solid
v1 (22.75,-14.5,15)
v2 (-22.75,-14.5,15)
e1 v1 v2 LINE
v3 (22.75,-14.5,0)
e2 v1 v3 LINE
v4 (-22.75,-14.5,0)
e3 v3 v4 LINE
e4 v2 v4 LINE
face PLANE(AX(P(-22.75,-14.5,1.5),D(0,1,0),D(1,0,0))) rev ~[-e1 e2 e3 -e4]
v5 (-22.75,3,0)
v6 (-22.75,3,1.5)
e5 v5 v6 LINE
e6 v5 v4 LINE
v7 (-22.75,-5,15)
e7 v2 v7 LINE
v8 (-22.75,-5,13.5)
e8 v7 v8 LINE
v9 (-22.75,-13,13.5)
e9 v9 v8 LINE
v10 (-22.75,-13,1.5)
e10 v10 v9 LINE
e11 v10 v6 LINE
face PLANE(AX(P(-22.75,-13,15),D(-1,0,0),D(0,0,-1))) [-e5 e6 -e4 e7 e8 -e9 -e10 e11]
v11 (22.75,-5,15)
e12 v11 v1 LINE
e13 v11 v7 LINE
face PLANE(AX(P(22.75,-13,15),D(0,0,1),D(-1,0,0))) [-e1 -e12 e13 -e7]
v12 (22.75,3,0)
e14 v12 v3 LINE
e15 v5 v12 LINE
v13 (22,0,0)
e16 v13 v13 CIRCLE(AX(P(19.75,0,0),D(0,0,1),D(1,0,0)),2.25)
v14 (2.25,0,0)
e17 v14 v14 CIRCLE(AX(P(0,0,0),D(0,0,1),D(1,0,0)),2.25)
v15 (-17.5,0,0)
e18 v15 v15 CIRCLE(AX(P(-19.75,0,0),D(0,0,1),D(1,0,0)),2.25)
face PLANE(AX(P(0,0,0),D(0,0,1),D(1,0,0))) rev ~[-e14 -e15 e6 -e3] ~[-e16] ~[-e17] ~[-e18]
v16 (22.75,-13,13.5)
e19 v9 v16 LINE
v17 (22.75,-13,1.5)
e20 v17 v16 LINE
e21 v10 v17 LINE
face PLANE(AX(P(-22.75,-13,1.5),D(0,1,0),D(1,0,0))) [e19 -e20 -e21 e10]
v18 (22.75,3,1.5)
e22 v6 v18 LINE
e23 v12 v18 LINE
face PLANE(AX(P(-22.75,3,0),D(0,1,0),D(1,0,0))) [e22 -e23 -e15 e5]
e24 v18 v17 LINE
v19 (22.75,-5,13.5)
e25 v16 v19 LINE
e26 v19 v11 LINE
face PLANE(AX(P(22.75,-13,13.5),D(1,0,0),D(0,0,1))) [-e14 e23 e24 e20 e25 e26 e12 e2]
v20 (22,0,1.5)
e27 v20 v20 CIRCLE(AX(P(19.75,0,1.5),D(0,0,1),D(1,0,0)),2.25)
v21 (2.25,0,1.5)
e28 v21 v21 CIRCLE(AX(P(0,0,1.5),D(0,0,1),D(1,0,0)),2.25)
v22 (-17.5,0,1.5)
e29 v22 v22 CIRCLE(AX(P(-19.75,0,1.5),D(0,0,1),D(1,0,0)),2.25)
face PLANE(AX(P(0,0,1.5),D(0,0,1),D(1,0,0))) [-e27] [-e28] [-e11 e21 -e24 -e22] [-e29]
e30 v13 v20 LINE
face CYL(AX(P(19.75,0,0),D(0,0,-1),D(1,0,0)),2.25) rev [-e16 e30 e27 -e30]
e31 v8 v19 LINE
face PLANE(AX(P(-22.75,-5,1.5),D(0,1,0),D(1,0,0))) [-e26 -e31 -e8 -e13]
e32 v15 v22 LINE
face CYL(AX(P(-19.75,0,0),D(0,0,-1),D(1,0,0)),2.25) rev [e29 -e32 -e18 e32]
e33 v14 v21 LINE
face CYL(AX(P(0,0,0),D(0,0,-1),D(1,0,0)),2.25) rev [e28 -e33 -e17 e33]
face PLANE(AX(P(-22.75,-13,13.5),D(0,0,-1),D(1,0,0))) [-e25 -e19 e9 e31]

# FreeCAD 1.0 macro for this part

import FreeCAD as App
import Part
import Sketcher


def add_polygon(sketch, points):
    """Adds a closed chain of lines whose ends are joined by coincident constraints."""
    first, n = sketch.GeometryCount, len(points)
    for a, b in zip(points, points[1:] + points[:1]):
        sketch.addGeometry(Part.LineSegment(App.Vector(*a, 0), App.Vector(*b, 0)), False)
    for i in range(n):
        sketch.addConstraint(Sketcher.Constraint("Coincident", first + i, 2, first + (i + 1) % n, 1))

doc = App.newDocument("Part")
body = doc.addObject("PartDesign::Body", "Body")

# Sketch on XY plane
sketch1 = body.newObject("Sketcher::SketchObject", "Sketch")
sketch1.AttachmentSupport = (doc.getObject("XY_Plane"), [""])
sketch1.MapMode = "FlatFace"
add_polygon(sketch1, [(22.8, 3), (-22.8, 3), (-22.8, -14.5), (22.8, -14.5)])  # lines 0-3
sketch1.addGeometry(Part.Circle(App.Vector(-19.8, 0, 0), App.Vector(0, 0, 1), 2.2), False)  # 4
sketch1.addGeometry(Part.Circle(App.Vector(0, 0, 0), App.Vector(0, 0, 1), 2.2), False)  # 5
sketch1.addGeometry(Part.Circle(App.Vector(19.8, 0, 0), App.Vector(0, 0, 1), 2.2), False)  # 6
sketch1.addConstraint([
    Sketcher.Constraint("Horizontal", 0),
    Sketcher.Constraint("Vertical", 1),
    Sketcher.Constraint("Horizontal", 2),
    Sketcher.Constraint("Vertical", 3),
    Sketcher.Constraint("Coincident", 5, 3, -1, 1),
    Sketcher.Constraint("Equal", 4, 5),
    Sketcher.Constraint("Equal", 5, 6),
    Sketcher.Constraint("Symmetric", 4, 3, 6, 3, -1, 1),
    Sketcher.Constraint("PointOnObject", 4, 3, -1),
    Sketcher.Constraint("Diameter", 4, 4.5),
    Sketcher.Constraint("DistanceY", -1, 1, 0, 2, 3.0),
    Sketcher.Constraint("DistanceX", 0, 2, 4, 3, 3.0),
    Sketcher.Constraint("DistanceX", 6, 3, 2, 2, 3.0),
    Sketcher.Constraint("DistanceX", 0, 2, 0, 1, 45.5),
    Sketcher.Constraint("DistanceY", 1, 2, 1, 1, 17.5),
])
pad1 = body.newObject("PartDesign::Pad", "Pad")
pad1.Profile = sketch1
pad1.Length = 1.5

# Sketch on XY plane
sketch2 = body.newObject("Sketcher::SketchObject", "Sketch001")
sketch2.AttachmentSupport = (doc.getObject("XY_Plane"), [""])
sketch2.MapMode = "FlatFace"
add_polygon(sketch2, [(22.8, -13), (-22.8, -13), (-22.8, -14.5), (22.8, -14.5)])  # lines 0-3
sketch2.addConstraint([
    Sketcher.Constraint("Horizontal", 0),
    Sketcher.Constraint("Vertical", 1),
    Sketcher.Constraint("Horizontal", 2),
    Sketcher.Constraint("Vertical", 3),
    Sketcher.Constraint("DistanceY", 1, 2, 1, 1, 1.5),
    Sketcher.Constraint("DistanceX", 0, 2, 0, 1, 45.5),
    Sketcher.Constraint("DistanceY", 0, 2, -1, 1, 13.0),
    Sketcher.Constraint("DistanceX", 0, 2, -1, 1, 22.75),
])
pad2 = body.newObject("PartDesign::Pad", "Pad001")
pad2.Profile = sketch2
pad2.Length = 13.5

# Sketch on XZ plane
sketch3 = body.newObject("Sketcher::SketchObject", "Sketch002")
sketch3.AttachmentSupport = (doc.getObject("XZ_Plane"), [""])
sketch3.MapMode = "FlatFace"
sketch3.AttachmentOffset = App.Placement(App.Vector(0, 0, 13), App.Rotation())
add_polygon(sketch3, [(22.8, 13.5), (-22.8, 13.5), (-22.8, 15), (22.8, 15)])  # lines 0-3
sketch3.addConstraint([
    Sketcher.Constraint("Horizontal", 0),
    Sketcher.Constraint("Vertical", 1),
    Sketcher.Constraint("Horizontal", 2),
    Sketcher.Constraint("Vertical", 3),
    Sketcher.Constraint("DistanceY", 1, 1, 1, 2, 1.5),
    Sketcher.Constraint("DistanceX", 0, 2, 0, 1, 45.5),
    Sketcher.Constraint("DistanceY", -1, 1, 1, 2, 15.0),
    Sketcher.Constraint("DistanceX", 0, 2, -1, 1, 22.75),
])
pad3 = body.newObject("PartDesign::Pad", "Pad002")
pad3.Profile = sketch3
pad3.Length = 1.5

# Sketch on XZ plane
sketch4 = body.newObject("Sketcher::SketchObject", "Sketch003")
sketch4.AttachmentSupport = (doc.getObject("XZ_Plane"), [""])
sketch4.MapMode = "FlatFace"
sketch4.AttachmentOffset = App.Placement(App.Vector(0, 0, 13), App.Rotation())
add_polygon(sketch4, [(22.8, 13.5), (-22.8, 13.5), (-22.8, 15), (22.8, 15)])  # lines 0-3
sketch4.addConstraint([
    Sketcher.Constraint("Horizontal", 0),
    Sketcher.Constraint("Vertical", 1),
    Sketcher.Constraint("Horizontal", 2),
    Sketcher.Constraint("Vertical", 3),
    Sketcher.Constraint("DistanceY", 1, 1, 1, 2, 1.5),
    Sketcher.Constraint("DistanceX", 0, 2, 0, 1, 45.5),
    Sketcher.Constraint("DistanceY", -1, 1, 1, 2, 15.0),
    Sketcher.Constraint("DistanceX", 0, 2, -1, 1, 22.75),
])
pad4 = body.newObject("PartDesign::Pad", "Pad003")
pad4.Profile = sketch4
pad4.Length = 8
pad4.Reversed = True

doc.recompute()
